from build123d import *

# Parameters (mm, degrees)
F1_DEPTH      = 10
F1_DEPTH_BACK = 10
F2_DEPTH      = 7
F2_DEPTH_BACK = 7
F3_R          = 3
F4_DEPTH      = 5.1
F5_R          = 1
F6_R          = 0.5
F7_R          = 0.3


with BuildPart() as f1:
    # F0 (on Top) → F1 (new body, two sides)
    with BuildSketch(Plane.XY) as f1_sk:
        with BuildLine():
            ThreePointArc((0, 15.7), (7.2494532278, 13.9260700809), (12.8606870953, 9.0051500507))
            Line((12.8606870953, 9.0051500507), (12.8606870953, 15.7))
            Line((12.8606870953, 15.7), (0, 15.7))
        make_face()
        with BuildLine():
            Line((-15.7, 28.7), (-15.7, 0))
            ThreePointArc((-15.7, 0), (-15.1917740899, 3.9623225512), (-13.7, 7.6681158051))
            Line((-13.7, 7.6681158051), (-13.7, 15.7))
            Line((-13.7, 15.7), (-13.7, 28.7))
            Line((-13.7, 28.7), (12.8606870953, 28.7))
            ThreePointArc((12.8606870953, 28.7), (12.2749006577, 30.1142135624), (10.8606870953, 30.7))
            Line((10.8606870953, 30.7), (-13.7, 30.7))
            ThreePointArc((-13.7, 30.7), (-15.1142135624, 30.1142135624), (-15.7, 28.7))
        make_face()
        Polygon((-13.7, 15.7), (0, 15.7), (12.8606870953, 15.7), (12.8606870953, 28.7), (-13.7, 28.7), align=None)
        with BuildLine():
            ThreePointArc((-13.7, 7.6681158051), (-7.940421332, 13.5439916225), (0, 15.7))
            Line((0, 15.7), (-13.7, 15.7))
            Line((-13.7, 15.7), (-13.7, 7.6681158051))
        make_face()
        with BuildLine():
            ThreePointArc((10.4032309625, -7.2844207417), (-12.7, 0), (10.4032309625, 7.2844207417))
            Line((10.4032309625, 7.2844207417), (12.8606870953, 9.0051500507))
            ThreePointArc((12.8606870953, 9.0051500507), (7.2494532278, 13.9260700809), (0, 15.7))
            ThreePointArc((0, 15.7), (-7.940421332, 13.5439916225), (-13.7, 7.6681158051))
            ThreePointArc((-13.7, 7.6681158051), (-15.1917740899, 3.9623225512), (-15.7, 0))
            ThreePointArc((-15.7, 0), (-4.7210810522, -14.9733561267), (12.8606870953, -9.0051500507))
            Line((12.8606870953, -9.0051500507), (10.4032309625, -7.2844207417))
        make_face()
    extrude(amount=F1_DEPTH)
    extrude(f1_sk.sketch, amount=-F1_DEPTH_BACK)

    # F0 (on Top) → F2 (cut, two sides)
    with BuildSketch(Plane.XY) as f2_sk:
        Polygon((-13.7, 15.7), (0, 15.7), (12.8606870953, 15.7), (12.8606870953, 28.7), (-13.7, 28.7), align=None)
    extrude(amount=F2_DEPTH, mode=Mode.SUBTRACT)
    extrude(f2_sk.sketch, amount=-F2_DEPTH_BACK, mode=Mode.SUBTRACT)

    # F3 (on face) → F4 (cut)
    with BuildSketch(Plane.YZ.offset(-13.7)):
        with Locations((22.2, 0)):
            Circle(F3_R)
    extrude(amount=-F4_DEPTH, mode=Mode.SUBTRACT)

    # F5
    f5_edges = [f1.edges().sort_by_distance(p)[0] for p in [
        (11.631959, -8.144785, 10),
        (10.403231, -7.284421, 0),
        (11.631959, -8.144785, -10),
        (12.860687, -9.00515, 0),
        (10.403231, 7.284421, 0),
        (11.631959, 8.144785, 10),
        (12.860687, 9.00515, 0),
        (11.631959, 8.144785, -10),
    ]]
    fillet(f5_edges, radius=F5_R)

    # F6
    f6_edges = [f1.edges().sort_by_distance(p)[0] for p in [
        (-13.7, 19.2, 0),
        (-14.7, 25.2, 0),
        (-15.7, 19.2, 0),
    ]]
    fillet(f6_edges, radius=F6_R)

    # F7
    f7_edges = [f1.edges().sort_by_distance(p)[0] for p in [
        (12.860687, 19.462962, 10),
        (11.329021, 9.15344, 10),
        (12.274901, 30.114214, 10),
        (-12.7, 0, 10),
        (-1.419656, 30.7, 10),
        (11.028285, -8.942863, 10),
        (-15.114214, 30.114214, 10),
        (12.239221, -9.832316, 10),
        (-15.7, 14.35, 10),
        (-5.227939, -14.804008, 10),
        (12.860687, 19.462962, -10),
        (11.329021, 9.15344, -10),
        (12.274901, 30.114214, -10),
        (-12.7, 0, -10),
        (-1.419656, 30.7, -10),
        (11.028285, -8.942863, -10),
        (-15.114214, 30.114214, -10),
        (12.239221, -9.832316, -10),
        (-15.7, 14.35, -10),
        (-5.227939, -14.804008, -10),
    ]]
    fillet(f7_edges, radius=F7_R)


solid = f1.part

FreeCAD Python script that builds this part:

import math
import FreeCAD as App
import Part
import Sketcher
Q = App.Units.Quantity


def edges_at(feature, points):
    """Names of the edges that pass closest to the given points."""
    edges = feature.Shape.Edges
    near = lambda p: min(range(len(edges)), key=lambda i: edges[i].distToShape(Part.Vertex(*p))[0])
    return sorted({f"Edge{near(p) + 1}" for p in points})


def add_polygon(sketch, points):
    """Adds a closed chain of lines whose ends are joined by coincident constraints."""
    first, n = sketch.GeometryCount, len(points)
    for a, b in zip(points, points[1:] + points[:1]):
        sketch.addGeometry(Part.LineSegment(App.Vector(*a, 0), App.Vector(*b, 0)), False)
    for i in range(n):
        sketch.addConstraint(Sketcher.Constraint("Coincident", first + i, 2, first + (i + 1) % n, 1))

doc = App.newDocument("Part")
params = doc.addObject("Spreadsheet::Sheet", "Params")
for row, (alias, value) in enumerate([
    ("sketch1_radius", "2 mm"),
    ("sketch1_radius2", "15.7 mm"),
    ("sketch1_radius3", "12.7 mm"),
    ("sketch1_height", "28.7 mm"),
    ("pad1_length", "10 mm"),
    ("pad1_length2", "10 mm"),
    ("sketch2_height", "13 mm"),
    ("pocket1_length", "7 mm"),
    ("pocket1_length2", "7 mm"),
    ("sketch3_diameter", "6 mm"),
    ("pocket2_length", "5.1 mm"),
    ("fillet_radius", "1 mm"),
    ("fillet2_radius", "0.5 mm"),
    ("fillet3_radius", "0.3 mm"),
], start=1):
    params.set(f"A{row}", alias)
    params.set(f"B{row}", "=" + value)
    params.setAlias(f"B{row}", alias)

body = doc.addObject("PartDesign::Body", "Body")

# Sketch on XY plane
sketch1 = body.newObject("Sketcher::SketchObject", "Sketch")
sketch1.AttachmentSupport = (doc.getObject("XY_Plane"), [""])
sketch1.MapMode = "FlatFace"
sketch1.addGeometry(Part.LineSegment(App.Vector(12.860687, 9.00515, 0), App.Vector(12.860687, 28.7, 0)), False)
sketch1.addGeometry(Part.ArcOfCircle(Part.Circle(App.Vector(10.860687, 28.7, 0), App.Vector(0, 0, 1), 2), math.radians(0), math.radians(90)), False)
sketch1.addGeometry(Part.LineSegment(App.Vector(10.860687, 30.7, 0), App.Vector(-13.7, 30.7, 0)), False)
sketch1.addGeometry(Part.ArcOfCircle(Part.Circle(App.Vector(-13.7, 28.7, 0), App.Vector(0, 0, 1), 2), math.radians(90), math.radians(180)), False)
sketch1.addGeometry(Part.LineSegment(App.Vector(-15.7, 28.7, 0), App.Vector(-15.7, 0, 0)), False)
sketch1.addGeometry(Part.ArcOfCircle(Part.Circle(App.Vector(0, 0, 0), App.Vector(0, 0, 1), 15.7), math.radians(180), math.radians(325)), False)
sketch1.addGeometry(Part.LineSegment(App.Vector(12.860687, -9.00515, 0), App.Vector(10.403231, -7.284421, 0)), False)
sketch1.addGeometry(Part.ArcOfCircle(Part.Circle(App.Vector(0, 0, 0), App.Vector(0, 0, 1), 12.7), math.radians(35), math.radians(325)), False)
sketch1.addGeometry(Part.LineSegment(App.Vector(10.403231, 7.284421, 0), App.Vector(12.860687, 9.00515, 0)), False)
sketch1.addConstraint(Sketcher.Constraint("Tangent", 0, 2, 1, 1))
sketch1.addConstraint(Sketcher.Constraint("Tangent", 1, 2, 2, 1))
sketch1.addConstraint(Sketcher.Constraint("Tangent", 2, 2, 3, 1))
sketch1.addConstraint(Sketcher.Constraint("Tangent", 3, 2, 4, 1))
sketch1.addConstraint(Sketcher.Constraint("Tangent", 4, 2, 5, 1))
sketch1.addConstraint(Sketcher.Constraint("Coincident", 5, 2, 6, 1))
sketch1.addConstraint(Sketcher.Constraint("Coincident", 6, 2, 7, 2))
sketch1.addConstraint(Sketcher.Constraint("Coincident", 7, 1, 8, 1))
sketch1.addConstraint(Sketcher.Constraint("Coincident", 8, 2, 0, 1))
sketch1.addConstraint(Sketcher.Constraint("Vertical", 0))
sketch1.addConstraint(Sketcher.Constraint("Horizontal", 2))
sketch1.addConstraint(Sketcher.Constraint("Vertical", 4))
sketch1.addConstraint(Sketcher.Constraint("Coincident", 5, 3, -1, 1))
sketch1.addConstraint(Sketcher.Constraint("Coincident", 7, 3, -1, 1))
sketch1.addConstraint(Sketcher.Constraint("Equal", 1, 3))
sketch1.addConstraint(Sketcher.Constraint("Symmetric", 5, 2, 8, 2, -1))
sketch1.addConstraint(Sketcher.Constraint("Vertical", 6, 2, 7, 1))
sketch1.addConstraint(Sketcher.Constraint("Radius", 1, Q("2 mm")))
sketch1.addConstraint(Sketcher.Constraint("Radius", 5, Q("15.7 mm")))
sketch1.addConstraint(Sketcher.Constraint("Radius", 7, Q("12.7 mm")))
sketch1.addConstraint(Sketcher.Constraint("Angle", 6, Q("145 deg")))
sketch1.addConstraint(Sketcher.Constraint("DistanceY", 4, 2, 4, 1, Q("28.7 mm")))
sketch1.addConstraint(Sketcher.Constraint("DistanceY", 0, 1, 0, 2, Q("19.69485 mm")))
sketch1.setExpression("Constraints[17]", "Params.sketch1_radius")
sketch1.setExpression("Constraints[18]", "Params.sketch1_radius2")
sketch1.setExpression("Constraints[19]", "Params.sketch1_radius3")
sketch1.setExpression("Constraints[21]", "Params.sketch1_height")
pad1 = body.newObject("PartDesign::Pad", "Pad")
pad1.Profile = sketch1
pad1.Type = "TwoLengths"
pad1.setExpression("Length", "Params.pad1_length")
pad1.setExpression("Length2", "Params.pad1_length2")

# Sketch on XY plane
sketch2 = body.newObject("Sketcher::SketchObject", "Sketch001")
sketch2.AttachmentSupport = (doc.getObject("XY_Plane"), [""])
sketch2.MapMode = "FlatFace"
add_polygon(sketch2, [(-13.7, 15.7), (12.860687, 15.7), (12.860687, 28.7), (-13.7, 28.7)])  # lines 0-3
sketch2.addConstraint(Sketcher.Constraint("Horizontal", 0))
sketch2.addConstraint(Sketcher.Constraint("Vertical", 1))
sketch2.addConstraint(Sketcher.Constraint("Horizontal", 2))
sketch2.addConstraint(Sketcher.Constraint("Vertical", 3))
sketch2.addConstraint(Sketcher.Constraint("DistanceY", 1, 1, 1, 2, Q("13 mm")))
sketch2.addConstraint(Sketcher.Constraint("DistanceY", -1, 1, 0, 2, Q("15.7 mm")))
sketch2.addConstraint(Sketcher.Constraint("DistanceX", 2, 2, -1, 1, Q("13.7 mm")))
sketch2.addConstraint(Sketcher.Constraint("DistanceX", 0, 1, 0, 2, Q("26.560687 mm")))
sketch2.setExpression("Constraints[8]", "Params.sketch2_height")
pocket1 = body.newObject("PartDesign::Pocket", "Pocket")
pocket1.Profile = sketch2
pocket1.Type = "TwoLengths"
pocket1.setExpression("Length", "Params.pocket1_length")
pocket1.setExpression("Length2", "Params.pocket1_length2")
pocket1.Reversed = True

# Sketch on YZ plane
sketch3 = body.newObject("Sketcher::SketchObject", "Sketch002")
sketch3.AttachmentSupport = (doc.getObject("YZ_Plane"), [""])
sketch3.MapMode = "FlatFace"
sketch3.AttachmentOffset = App.Placement(App.Vector(0, 0, -13.7), App.Rotation())
sketch3.addGeometry(Part.Circle(App.Vector(22.2, 0, 0), App.Vector(0, 0, 1), 3), False)
sketch3.addConstraint(Sketcher.Constraint("PointOnObject", 0, 3, -1))
sketch3.addConstraint(Sketcher.Constraint("Diameter", 0, Q("6 mm")))
sketch3.addConstraint(Sketcher.Constraint("DistanceX", -1, 1, 0, 3, Q("22.2 mm")))
sketch3.setExpression("Constraints[1]", "Params.sketch3_diameter")
pocket2 = body.newObject("PartDesign::Pocket", "Pocket001")
pocket2.Profile = sketch3
pocket2.setExpression("Length", "Params.pocket2_length")
doc.recompute()

fillet = body.newObject("PartDesign::Fillet", "Fillet")
fillet.Base = (pocket2, edges_at(pocket2, [
    (11.632, -8.145, 10),
    (10.403, -7.284, 0),
    (11.632, -8.145, -10),
    (12.861, -9.005, 0),
    (10.403, 7.284, 0),
    (11.632, 8.145, 10),
    (12.861, 9.005, 0),
    (11.632, 8.145, -10),
]))
fillet.setExpression("Radius", "Params.fillet_radius")
doc.recompute()

fillet2 = body.newObject("PartDesign::Fillet", "Fillet001")
fillet2.Base = (fillet, edges_at(fillet, [(-13.7, 19.2, 0), (-14.7, 25.2, 0), (-15.7, 19.2, 0)]))
fillet2.setExpression("Radius", "Params.fillet2_radius")
doc.recompute()

fillet3 = body.newObject("PartDesign::Fillet", "Fillet002")
fillet3.Base = (fillet2, edges_at(fillet2, [
    (12.861, 19.463, 10),
    (11.329, 9.153, 10),
    (12.275, 30.114, 10),
    (-12.7, 0, 10),
    (-1.42, 30.7, 10),
    (11.028, -8.943, 10),
    (-15.114, 30.114, 10),
    (12.239, -9.832, 10),
    (-15.7, 14.35, 10),
    (-5.228, -14.804, 10),
    (12.861, 19.463, -10),
    (11.329, 9.153, -10),
    (12.275, 30.114, -10),
    (-12.7, 0, -10),
    (-1.42, 30.7, -10),
    (11.028, -8.943, -10),
    (-15.114, 30.114, -10),
    (12.239, -9.832, -10),
    (-15.7, 14.35, -10),
    (-5.228, -14.804, -10),
]))
fillet3.setExpression("Radius", "Params.fillet3_radius")

doc.recompute()
